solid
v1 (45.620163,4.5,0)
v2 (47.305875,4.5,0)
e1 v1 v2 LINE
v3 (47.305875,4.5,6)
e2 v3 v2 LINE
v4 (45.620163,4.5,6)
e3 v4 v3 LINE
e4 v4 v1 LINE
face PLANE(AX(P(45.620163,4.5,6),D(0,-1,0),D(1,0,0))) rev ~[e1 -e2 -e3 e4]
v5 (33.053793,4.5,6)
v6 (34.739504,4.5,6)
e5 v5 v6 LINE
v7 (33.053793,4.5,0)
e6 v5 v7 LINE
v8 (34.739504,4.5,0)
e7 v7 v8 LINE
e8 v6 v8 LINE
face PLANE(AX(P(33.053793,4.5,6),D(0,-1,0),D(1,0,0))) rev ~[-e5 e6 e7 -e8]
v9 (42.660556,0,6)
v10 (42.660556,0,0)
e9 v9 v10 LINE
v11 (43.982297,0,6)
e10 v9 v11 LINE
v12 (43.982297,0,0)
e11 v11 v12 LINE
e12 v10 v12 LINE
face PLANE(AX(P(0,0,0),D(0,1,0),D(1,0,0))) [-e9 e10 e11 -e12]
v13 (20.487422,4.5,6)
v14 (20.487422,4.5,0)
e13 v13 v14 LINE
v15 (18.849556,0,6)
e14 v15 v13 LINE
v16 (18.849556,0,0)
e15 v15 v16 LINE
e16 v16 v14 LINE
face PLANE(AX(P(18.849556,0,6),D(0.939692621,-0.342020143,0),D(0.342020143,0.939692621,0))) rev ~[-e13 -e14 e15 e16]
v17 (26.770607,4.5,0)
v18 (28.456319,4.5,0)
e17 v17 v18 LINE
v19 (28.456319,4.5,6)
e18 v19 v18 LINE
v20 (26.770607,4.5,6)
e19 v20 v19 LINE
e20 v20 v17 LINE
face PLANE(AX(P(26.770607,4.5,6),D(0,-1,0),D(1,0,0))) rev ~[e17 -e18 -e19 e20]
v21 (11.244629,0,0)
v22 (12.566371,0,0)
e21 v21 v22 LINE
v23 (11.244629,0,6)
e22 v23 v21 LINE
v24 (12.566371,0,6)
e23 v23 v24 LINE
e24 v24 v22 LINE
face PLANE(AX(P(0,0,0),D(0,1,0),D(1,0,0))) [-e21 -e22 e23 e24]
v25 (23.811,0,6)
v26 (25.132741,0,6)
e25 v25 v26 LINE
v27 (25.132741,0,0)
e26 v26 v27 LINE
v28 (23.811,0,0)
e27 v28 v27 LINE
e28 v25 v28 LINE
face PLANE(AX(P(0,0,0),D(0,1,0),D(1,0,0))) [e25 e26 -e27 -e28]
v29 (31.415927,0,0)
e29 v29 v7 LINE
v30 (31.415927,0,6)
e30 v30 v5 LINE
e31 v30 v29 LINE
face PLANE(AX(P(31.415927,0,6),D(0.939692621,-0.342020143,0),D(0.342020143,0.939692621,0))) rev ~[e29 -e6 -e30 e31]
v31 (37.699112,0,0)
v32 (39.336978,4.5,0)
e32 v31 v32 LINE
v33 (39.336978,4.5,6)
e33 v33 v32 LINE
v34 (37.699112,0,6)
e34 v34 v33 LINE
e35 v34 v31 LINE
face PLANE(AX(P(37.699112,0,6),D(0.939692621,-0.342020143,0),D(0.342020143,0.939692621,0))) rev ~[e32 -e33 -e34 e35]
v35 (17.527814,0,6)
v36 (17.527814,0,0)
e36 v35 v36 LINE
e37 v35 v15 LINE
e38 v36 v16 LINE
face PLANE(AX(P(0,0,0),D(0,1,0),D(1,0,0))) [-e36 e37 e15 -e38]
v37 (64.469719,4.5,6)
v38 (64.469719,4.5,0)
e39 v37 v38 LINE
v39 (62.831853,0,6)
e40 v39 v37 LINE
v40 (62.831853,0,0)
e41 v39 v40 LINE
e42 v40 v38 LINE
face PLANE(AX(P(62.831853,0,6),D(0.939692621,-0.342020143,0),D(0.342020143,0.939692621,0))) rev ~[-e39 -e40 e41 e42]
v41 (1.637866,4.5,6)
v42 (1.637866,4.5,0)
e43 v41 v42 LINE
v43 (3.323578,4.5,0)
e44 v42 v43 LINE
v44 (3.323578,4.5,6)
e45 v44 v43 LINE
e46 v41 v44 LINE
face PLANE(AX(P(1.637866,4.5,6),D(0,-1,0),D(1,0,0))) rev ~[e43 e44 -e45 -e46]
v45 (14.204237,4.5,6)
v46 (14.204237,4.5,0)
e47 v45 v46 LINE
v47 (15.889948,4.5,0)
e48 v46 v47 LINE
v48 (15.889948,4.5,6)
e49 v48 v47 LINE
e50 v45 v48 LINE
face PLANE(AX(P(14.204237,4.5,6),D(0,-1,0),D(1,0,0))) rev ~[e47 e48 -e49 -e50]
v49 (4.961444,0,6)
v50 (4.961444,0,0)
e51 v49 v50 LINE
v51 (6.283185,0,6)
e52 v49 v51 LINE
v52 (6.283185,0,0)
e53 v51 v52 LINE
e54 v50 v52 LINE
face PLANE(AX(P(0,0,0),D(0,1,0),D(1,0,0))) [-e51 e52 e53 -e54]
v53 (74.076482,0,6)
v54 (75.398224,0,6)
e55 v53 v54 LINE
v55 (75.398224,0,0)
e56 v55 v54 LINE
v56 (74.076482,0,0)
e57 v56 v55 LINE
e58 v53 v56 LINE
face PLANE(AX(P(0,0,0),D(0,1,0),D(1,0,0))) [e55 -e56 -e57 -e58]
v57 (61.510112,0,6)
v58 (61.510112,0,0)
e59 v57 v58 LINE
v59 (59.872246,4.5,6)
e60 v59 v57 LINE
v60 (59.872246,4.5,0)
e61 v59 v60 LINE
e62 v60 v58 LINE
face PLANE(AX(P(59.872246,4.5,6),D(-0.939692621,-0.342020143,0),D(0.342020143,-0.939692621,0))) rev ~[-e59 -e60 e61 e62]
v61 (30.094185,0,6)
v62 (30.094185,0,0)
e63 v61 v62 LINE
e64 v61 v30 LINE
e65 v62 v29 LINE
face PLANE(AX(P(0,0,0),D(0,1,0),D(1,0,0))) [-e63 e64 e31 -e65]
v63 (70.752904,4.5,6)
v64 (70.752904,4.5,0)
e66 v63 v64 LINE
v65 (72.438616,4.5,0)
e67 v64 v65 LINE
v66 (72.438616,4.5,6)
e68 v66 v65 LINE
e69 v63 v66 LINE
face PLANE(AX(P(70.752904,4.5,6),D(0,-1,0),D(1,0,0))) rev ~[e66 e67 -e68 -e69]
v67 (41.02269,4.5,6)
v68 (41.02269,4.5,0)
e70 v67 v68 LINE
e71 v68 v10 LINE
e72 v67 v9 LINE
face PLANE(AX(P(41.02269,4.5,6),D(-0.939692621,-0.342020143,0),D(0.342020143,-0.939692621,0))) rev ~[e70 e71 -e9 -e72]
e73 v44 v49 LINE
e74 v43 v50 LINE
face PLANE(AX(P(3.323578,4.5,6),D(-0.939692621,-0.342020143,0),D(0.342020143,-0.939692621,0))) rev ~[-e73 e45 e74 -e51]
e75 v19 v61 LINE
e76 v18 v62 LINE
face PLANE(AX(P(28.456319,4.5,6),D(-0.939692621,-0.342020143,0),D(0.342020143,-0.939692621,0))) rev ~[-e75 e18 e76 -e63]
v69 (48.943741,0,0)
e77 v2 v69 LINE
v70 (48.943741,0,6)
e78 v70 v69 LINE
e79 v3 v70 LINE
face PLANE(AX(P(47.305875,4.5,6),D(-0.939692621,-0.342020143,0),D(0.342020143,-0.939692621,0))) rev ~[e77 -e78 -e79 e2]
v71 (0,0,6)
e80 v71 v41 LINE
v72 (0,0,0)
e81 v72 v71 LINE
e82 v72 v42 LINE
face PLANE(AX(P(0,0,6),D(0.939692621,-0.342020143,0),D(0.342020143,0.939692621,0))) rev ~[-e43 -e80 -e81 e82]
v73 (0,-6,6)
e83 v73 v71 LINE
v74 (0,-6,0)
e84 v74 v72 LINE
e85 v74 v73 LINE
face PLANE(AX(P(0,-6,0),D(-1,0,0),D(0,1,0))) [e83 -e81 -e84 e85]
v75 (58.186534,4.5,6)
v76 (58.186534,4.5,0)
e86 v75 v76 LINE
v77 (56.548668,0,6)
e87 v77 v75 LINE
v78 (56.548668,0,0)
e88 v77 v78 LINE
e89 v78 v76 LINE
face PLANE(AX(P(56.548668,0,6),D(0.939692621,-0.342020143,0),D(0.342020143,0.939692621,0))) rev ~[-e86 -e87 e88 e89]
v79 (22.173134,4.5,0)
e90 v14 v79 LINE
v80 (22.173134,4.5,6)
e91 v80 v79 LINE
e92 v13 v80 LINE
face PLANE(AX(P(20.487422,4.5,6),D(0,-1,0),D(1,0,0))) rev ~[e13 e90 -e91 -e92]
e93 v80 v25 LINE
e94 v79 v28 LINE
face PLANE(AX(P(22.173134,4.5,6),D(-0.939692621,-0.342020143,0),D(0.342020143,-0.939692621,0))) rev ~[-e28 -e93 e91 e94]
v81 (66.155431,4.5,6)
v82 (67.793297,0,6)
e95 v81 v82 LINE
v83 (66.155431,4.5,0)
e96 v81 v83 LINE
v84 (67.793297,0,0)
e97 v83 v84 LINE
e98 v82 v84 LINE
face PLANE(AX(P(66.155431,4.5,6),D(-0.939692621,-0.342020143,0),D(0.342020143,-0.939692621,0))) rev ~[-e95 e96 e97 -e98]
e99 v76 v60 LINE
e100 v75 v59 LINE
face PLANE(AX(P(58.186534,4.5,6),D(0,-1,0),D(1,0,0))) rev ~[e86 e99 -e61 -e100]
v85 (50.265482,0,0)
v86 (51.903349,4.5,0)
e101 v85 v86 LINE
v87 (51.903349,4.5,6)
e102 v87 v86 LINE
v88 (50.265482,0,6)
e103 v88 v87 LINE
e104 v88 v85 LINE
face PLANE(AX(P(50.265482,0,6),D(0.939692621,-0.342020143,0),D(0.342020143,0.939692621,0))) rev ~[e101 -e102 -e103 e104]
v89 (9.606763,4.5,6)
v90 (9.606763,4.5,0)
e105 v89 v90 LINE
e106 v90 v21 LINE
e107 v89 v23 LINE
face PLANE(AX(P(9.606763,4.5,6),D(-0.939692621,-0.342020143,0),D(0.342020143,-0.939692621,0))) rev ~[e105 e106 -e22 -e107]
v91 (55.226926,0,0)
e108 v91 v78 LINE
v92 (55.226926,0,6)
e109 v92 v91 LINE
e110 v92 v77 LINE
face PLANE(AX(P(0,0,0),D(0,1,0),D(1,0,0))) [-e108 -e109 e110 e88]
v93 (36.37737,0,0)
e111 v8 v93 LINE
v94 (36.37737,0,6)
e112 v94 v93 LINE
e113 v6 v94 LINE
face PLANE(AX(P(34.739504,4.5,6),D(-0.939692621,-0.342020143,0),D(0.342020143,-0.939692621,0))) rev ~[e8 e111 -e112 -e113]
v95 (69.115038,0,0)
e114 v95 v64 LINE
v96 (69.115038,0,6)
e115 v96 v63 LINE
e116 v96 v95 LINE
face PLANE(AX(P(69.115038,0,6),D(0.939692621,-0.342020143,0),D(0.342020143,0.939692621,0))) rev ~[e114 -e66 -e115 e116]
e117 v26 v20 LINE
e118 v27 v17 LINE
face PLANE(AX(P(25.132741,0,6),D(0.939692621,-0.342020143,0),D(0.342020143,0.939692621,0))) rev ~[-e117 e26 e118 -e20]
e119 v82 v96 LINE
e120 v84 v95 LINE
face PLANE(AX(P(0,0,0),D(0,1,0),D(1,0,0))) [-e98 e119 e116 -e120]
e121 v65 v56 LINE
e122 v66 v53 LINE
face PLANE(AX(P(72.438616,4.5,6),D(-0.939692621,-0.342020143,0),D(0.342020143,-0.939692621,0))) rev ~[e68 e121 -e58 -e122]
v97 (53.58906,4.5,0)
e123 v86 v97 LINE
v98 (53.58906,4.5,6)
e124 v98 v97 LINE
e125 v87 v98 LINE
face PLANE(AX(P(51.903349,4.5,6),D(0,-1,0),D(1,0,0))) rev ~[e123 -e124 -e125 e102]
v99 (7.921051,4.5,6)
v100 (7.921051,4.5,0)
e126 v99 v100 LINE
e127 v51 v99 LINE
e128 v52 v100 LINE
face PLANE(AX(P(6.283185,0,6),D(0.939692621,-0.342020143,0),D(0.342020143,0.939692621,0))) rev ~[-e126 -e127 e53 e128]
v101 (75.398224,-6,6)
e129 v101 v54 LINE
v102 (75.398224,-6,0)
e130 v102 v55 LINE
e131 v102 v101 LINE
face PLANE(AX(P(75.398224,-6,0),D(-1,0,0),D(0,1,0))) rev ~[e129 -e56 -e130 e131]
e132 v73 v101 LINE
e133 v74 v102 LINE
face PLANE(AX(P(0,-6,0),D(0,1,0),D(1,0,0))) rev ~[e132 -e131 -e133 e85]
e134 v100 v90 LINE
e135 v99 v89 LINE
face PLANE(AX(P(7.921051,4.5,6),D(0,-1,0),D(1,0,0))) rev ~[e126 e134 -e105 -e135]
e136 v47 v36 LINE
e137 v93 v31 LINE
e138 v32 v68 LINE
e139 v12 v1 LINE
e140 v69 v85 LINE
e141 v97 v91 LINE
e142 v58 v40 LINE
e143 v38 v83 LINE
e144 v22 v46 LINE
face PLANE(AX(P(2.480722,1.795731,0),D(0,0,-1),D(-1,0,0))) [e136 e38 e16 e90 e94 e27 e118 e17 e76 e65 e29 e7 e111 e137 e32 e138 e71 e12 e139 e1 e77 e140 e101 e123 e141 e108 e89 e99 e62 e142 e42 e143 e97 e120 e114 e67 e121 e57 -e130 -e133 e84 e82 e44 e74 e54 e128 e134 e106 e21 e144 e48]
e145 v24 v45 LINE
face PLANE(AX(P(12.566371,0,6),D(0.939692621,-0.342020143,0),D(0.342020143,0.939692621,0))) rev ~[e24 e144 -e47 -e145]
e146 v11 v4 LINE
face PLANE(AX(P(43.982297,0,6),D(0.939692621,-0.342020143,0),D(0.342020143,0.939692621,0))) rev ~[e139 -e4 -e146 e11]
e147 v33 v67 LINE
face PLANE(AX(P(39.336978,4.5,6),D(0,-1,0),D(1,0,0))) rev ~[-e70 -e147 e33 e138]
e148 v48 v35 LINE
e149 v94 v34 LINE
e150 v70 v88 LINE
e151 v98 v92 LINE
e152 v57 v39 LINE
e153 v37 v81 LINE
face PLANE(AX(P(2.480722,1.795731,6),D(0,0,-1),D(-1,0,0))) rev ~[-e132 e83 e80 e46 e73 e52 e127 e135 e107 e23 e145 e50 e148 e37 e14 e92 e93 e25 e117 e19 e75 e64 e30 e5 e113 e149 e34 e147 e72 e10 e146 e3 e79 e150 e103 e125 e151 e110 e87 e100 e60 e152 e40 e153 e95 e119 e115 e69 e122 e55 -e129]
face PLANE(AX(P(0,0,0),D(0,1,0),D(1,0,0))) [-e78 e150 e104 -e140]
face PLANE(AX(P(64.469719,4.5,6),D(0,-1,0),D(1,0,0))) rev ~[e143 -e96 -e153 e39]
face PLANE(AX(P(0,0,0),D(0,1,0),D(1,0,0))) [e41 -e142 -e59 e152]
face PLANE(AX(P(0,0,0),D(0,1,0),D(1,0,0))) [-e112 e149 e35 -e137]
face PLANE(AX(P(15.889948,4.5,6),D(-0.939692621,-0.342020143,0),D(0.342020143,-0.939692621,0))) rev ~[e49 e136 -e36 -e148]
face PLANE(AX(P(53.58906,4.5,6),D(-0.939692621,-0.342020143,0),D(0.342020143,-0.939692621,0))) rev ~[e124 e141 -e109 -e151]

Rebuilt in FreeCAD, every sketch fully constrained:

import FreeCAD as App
import Part
import Sketcher
Q = App.Units.Quantity

doc = App.newDocument("Part")
body = doc.addObject("PartDesign::Body", "Body")

sketch1 = body.newObject("Sketcher::SketchObject", "Sketch")
sketch1.AttachmentSupport = (doc.getObject("XY_Plane"), [""])
sketch1.MapMode = "FlatFace"
sketch1.addGeometry(Part.LineSegment(App.Vector(0, 0, 0), App.Vector(0, -6, 0)), False)
sketch1.addGeometry(Part.LineSegment(App.Vector(0, -6, 0), App.Vector(75, -6, 0)), False)
sketch1.addGeometry(Part.LineSegment(App.Vector(75, -6, 0), App.Vector(75, 0, 0)), False)
sketch1.addGeometry(Part.LineSegment(App.Vector(75, 0, 0), App.Vector(0, 0, 0)), False)
sketch1.addConstraint(Sketcher.Constraint("Coincident", 0, 2, 1, 1))
sketch1.addConstraint(Sketcher.Constraint("Coincident", 1, 2, 2, 1))
sketch1.addConstraint(Sketcher.Constraint("Coincident", 2, 2, 3, 1))
sketch1.addConstraint(Sketcher.Constraint("Coincident", 3, 2, 0, 1))
sketch1.addConstraint(Sketcher.Constraint("Vertical", 0))
sketch1.addConstraint(Sketcher.Constraint("Horizontal", 1))
sketch1.addConstraint(Sketcher.Constraint("Vertical", 2))
sketch1.addConstraint(Sketcher.Constraint("Horizontal", 3))
sketch1.addConstraint(Sketcher.Constraint("Coincident", 3, 2, -1, 1))
sketch1.addConstraint(Sketcher.Constraint("DistanceY", 0, 2, 0, 1, Q("6 mm")))
sketch1.addConstraint(Sketcher.Constraint("DistanceX", 1, 1, 1, 2, Q("75.398224 mm")))
pad1 = body.newObject("PartDesign::Pad", "Pad")
pad1.Profile = sketch1
pad1.Length = 6

sketch2 = body.newObject("Sketcher::SketchObject", "Sketch001")
sketch2.AttachmentSupport = (doc.getObject("XY_Plane"), [""])
sketch2.MapMode = "FlatFace"
sketch2.AttachmentOffset = App.Placement(App.Vector(0, 0, 6), App.Rotation())
sketch2.addGeometry(Part.LineSegment(App.Vector(1.6, 4.5, 0), App.Vector(0, 0, 0)), False)
sketch2.addGeometry(Part.LineSegment(App.Vector(0, 0, 0), App.Vector(5, 0, 0)), False)
sketch2.addGeometry(Part.LineSegment(App.Vector(5, 0, 0), App.Vector(3.3, 4.5, 0)), False)
sketch2.addGeometry(Part.LineSegment(App.Vector(3.3, 4.5, 0), App.Vector(1.6, 4.5, 0)), False)
sketch2.addConstraint(Sketcher.Constraint("Coincident", 0, 2, 1, 1))
sketch2.addConstraint(Sketcher.Constraint("Coincident", 1, 2, 2, 1))
sketch2.addConstraint(Sketcher.Constraint("Coincident", 2, 2, 3, 1))
sketch2.addConstraint(Sketcher.Constraint("Coincident", 3, 2, 0, 1))
sketch2.addConstraint(Sketcher.Constraint("Horizontal", 1))
sketch2.addConstraint(Sketcher.Constraint("Horizontal", 3))
sketch2.addConstraint(Sketcher.Constraint("Coincident", 0, 2, -1, 1))
sketch2.addConstraint(Sketcher.Constraint("Equal", 0, 2))
sketch2.addConstraint(Sketcher.Constraint("Angle", 0, Q("-110 deg")))
sketch2.addConstraint(Sketcher.Constraint("DistanceY", -1, 1, 2, 2, Q("4.5 mm")))
sketch2.addConstraint(Sketcher.Constraint("DistanceX", 3, 2, 3, 1, Q("1.685712 mm")))
pad2 = body.newObject("PartDesign::Pad", "Pad001")
pad2.Profile = sketch2
pad2.Length = 6
pad2.Reversed = True
doc.recompute()

linearpattern = body.newObject("PartDesign::LinearPattern", "LinearPattern")
linearpattern.Originals = [pad2]
linearpattern.Direction = (doc.getObject("X_Axis"), [""])
linearpattern.Mode = "offset"
linearpattern.Offset = 6.283185
linearpattern.Occurrences = 12
body.Tip = linearpattern

doc.recompute()
